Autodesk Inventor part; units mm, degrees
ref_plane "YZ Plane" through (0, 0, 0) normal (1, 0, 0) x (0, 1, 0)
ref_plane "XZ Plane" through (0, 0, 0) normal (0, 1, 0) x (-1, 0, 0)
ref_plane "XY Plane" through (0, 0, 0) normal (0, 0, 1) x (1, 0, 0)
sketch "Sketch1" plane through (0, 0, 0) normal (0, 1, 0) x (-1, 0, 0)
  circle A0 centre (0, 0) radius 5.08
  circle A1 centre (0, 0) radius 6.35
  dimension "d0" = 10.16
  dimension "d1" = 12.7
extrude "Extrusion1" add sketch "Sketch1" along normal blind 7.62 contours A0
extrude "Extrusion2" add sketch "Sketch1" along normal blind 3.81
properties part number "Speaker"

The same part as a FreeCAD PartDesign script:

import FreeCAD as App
import Part
import Sketcher

V = App.Vector
Q = App.Units.Quantity

doc = App.newDocument("Part")
body = doc.addObject("PartDesign::Body", "Body")

# Sketch on XZ plane
sketch1 = doc.addObject("Sketcher::SketchObject", "Sketch")
body.addObject(sketch1)
sketch1.AttachmentSupport = (doc.XZ_Plane, [""])
sketch1.MapMode = "FlatFace"
sketch1.addGeometry(Part.Circle(V(0, 0, 0), V(0, 0, 1), 5), False)
sketch1.addConstraint([
    Sketcher.Constraint("Coincident", 0, 3, -1, 1),
    Sketcher.Constraint("Diameter", 0, Q("0.4 in")),
])
pad1 = doc.addObject("PartDesign::Pad", "Pad")
body.addObject(pad1)
pad1.Profile = sketch1
pad1.Length = Q("0.3 in")
pad1.Reversed = True

# Sketch on XZ plane
sketch2 = doc.addObject("Sketcher::SketchObject", "Sketch001")
body.addObject(sketch2)
sketch2.AttachmentSupport = (doc.XZ_Plane, [""])
sketch2.MapMode = "FlatFace"
sketch2.addGeometry([
    Part.Circle(V(0, 0, 0), V(0, 0, 1), 6),
    Part.Circle(V(0, 0, 0), V(0, 0, 1), 5),
], False)
sketch2.addConstraint([
    Sketcher.Constraint("Coincident", 0, 3, -1, 1),
    Sketcher.Constraint("Coincident", 1, 3, -1, 1),
    Sketcher.Constraint("Diameter", 0, Q("0.5 in")),
    Sketcher.Constraint("Diameter", 1, Q("0.4 in")),
])
pad2 = doc.addObject("PartDesign::Pad", "Pad001")
body.addObject(pad2)
pad2.Profile = sketch2
pad2.Length = Q("0.15 in")
pad2.Reversed = True

doc.recompute()
